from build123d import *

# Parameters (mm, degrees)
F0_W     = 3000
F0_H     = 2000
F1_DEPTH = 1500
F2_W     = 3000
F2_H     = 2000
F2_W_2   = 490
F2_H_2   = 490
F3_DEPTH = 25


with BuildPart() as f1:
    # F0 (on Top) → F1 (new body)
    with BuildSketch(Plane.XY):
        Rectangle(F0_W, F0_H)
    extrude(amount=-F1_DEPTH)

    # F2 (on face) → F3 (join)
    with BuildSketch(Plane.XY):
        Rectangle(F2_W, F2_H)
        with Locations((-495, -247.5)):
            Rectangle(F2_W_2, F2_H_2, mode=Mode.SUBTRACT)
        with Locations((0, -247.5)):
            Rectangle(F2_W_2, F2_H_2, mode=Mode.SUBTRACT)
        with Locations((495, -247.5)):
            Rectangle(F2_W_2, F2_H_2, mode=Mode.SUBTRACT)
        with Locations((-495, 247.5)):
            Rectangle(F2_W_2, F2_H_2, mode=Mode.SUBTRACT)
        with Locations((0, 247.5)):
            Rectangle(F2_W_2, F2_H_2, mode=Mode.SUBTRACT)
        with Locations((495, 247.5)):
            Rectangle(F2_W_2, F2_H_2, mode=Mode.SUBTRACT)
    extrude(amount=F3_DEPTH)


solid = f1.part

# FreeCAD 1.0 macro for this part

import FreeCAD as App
import Part
import Sketcher

V = App.Vector
Q = App.Units.Quantity

doc = App.newDocument("Part")
body = doc.addObject("PartDesign::Body", "Body")

# Sketch on XY plane
sketch1 = body.newObject("Sketcher::SketchObject", "Sketch")
sketch1.AttachmentSupport = (doc.getObject("XY_Plane"), [""])
sketch1.MapMode = "FlatFace"
sketch1.addGeometry([
    Part.LineSegment(V(-1500, 1000, 0), V(-1500, -1000, 0)),
    Part.LineSegment(V(-1500, -1000, 0), V(1500, -1000, 0)),
    Part.LineSegment(V(1500, -1000, 0), V(1500, 1000, 0)),
    Part.LineSegment(V(1500, 1000, 0), V(-1500, 1000, 0)),
], False)
sketch1.addConstraint([
    Sketcher.Constraint("Coincident", 0, 2, 1, 1),
    Sketcher.Constraint("Coincident", 1, 2, 2, 1),
    Sketcher.Constraint("Coincident", 2, 2, 3, 1),
    Sketcher.Constraint("Coincident", 3, 2, 0, 1),
    Sketcher.Constraint("Vertical", 0),
    Sketcher.Constraint("Horizontal", 1),
    Sketcher.Constraint("Vertical", 2),
    Sketcher.Constraint("Horizontal", 3),
    Sketcher.Constraint("Symmetric", 0, 2, 2, 2, -1, 1),
    Sketcher.Constraint("DistanceX", 1, 1, 1, 2, Q("3000 mm")),
    Sketcher.Constraint("DistanceY", 0, 2, 0, 1, Q("2000 mm")),
])
pad1 = body.newObject("PartDesign::Pad", "Pad")
pad1.Profile = sketch1
pad1.Length = 1500
pad1.Reversed = True

# Sketch on XY plane
sketch2 = body.newObject("Sketcher::SketchObject", "Sketch001")
sketch2.AttachmentSupport = (doc.getObject("XY_Plane"), [""])
sketch2.MapMode = "FlatFace"
sketch2.addGeometry([
    Part.LineSegment(V(-1500, 1000, 0), V(-1500, -1000, 0)),  # 0
    Part.LineSegment(V(-1500, -1000, 0), V(1500, -1000, 0)),  # 1
    Part.LineSegment(V(1500, -1000, 0), V(1500, 1000, 0)),  # 2
    Part.LineSegment(V(1500, 1000, 0), V(-1500, 1000, 0)),  # 3
    Part.LineSegment(V(-250, -492, 0), V(-740, -492, 0)),  # 4
    Part.LineSegment(V(-740, -492, 0), V(-740, -2, 0)),  # 5
    Part.LineSegment(V(-740, -2, 0), V(-250, -2, 0)),  # 6
    Part.LineSegment(V(-250, -2, 0), V(-250, -492, 0)),  # 7
    Part.LineSegment(V(245, -492, 0), V(-245, -492, 0)),  # 8
    Part.LineSegment(V(-245, -492, 0), V(-245, -2, 0)),  # 9
    Part.LineSegment(V(-245, -2, 0), V(245, -2, 0)),  # 10
    Part.LineSegment(V(245, -2, 0), V(245, -492, 0)),  # 11
    Part.LineSegment(V(740, -492, 0), V(250, -492, 0)),  # 12
    Part.LineSegment(V(250, -492, 0), V(250, -2, 0)),  # 13
    Part.LineSegment(V(250, -2, 0), V(740, -2, 0)),  # 14
    Part.LineSegment(V(740, -2, 0), V(740, -492, 0)),  # 15
    Part.LineSegment(V(-250, 2, 0), V(-740, 2, 0)),  # 16
    Part.LineSegment(V(-740, 2, 0), V(-740, 492, 0)),  # 17
    Part.LineSegment(V(-740, 492, 0), V(-250, 492, 0)),  # 18
    Part.LineSegment(V(-250, 492, 0), V(-250, 2, 0)),  # 19
    Part.LineSegment(V(245, 2, 0), V(-245, 2, 0)),  # 20
    Part.LineSegment(V(-245, 2, 0), V(-245, 492, 0)),  # 21
    Part.LineSegment(V(-245, 492, 0), V(245, 492, 0)),  # 22
    Part.LineSegment(V(245, 492, 0), V(245, 2, 0)),  # 23
    Part.LineSegment(V(740, 2, 0), V(250, 2, 0)),  # 24
    Part.LineSegment(V(250, 2, 0), V(250, 492, 0)),  # 25
    Part.LineSegment(V(250, 492, 0), V(740, 492, 0)),  # 26
    Part.LineSegment(V(740, 492, 0), V(740, 2, 0)),  # 27
], False)
sketch2.addConstraint([
    Sketcher.Constraint("Coincident", 0, 2, 1, 1),
    Sketcher.Constraint("Coincident", 1, 2, 2, 1),
    Sketcher.Constraint("Coincident", 2, 2, 3, 1),
    Sketcher.Constraint("Coincident", 3, 2, 0, 1),
    Sketcher.Constraint("Coincident", 4, 2, 5, 1),
    Sketcher.Constraint("Coincident", 5, 2, 6, 1),
    Sketcher.Constraint("Coincident", 6, 2, 7, 1),
    Sketcher.Constraint("Coincident", 7, 2, 4, 1),
    Sketcher.Constraint("Coincident", 8, 2, 9, 1),
    Sketcher.Constraint("Coincident", 9, 2, 10, 1),
    Sketcher.Constraint("Coincident", 10, 2, 11, 1),
    Sketcher.Constraint("Coincident", 11, 2, 8, 1),
    Sketcher.Constraint("Coincident", 12, 2, 13, 1),
    Sketcher.Constraint("Coincident", 13, 2, 14, 1),
    Sketcher.Constraint("Coincident", 14, 2, 15, 1),
    Sketcher.Constraint("Coincident", 15, 2, 12, 1),
    Sketcher.Constraint("Coincident", 16, 2, 17, 1),
    Sketcher.Constraint("Coincident", 17, 2, 18, 1),
    Sketcher.Constraint("Coincident", 18, 2, 19, 1),
    Sketcher.Constraint("Coincident", 19, 2, 16, 1),
    Sketcher.Constraint("Coincident", 20, 2, 21, 1),
    Sketcher.Constraint("Coincident", 21, 2, 22, 1),
    Sketcher.Constraint("Coincident", 22, 2, 23, 1),
    Sketcher.Constraint("Coincident", 23, 2, 20, 1),
    Sketcher.Constraint("Coincident", 24, 2, 25, 1),
    Sketcher.Constraint("Coincident", 25, 2, 26, 1),
    Sketcher.Constraint("Coincident", 26, 2, 27, 1),
    Sketcher.Constraint("Coincident", 27, 2, 24, 1),
    Sketcher.Constraint("Vertical", 0),
    Sketcher.Constraint("Horizontal", 1),
    Sketcher.Constraint("Vertical", 2),
    Sketcher.Constraint("Horizontal", 3),
    Sketcher.Constraint("Horizontal", 4),
    Sketcher.Constraint("Vertical", 5),
    Sketcher.Constraint("Horizontal", 6),
    Sketcher.Constraint("Vertical", 7),
    Sketcher.Constraint("Horizontal", 8),
    Sketcher.Constraint("Vertical", 9),
    Sketcher.Constraint("Horizontal", 10),
    Sketcher.Constraint("Vertical", 11),
    Sketcher.Constraint("Horizontal", 12),
    Sketcher.Constraint("Vertical", 13),
    Sketcher.Constraint("Horizontal", 14),
    Sketcher.Constraint("Vertical", 15),
    Sketcher.Constraint("Horizontal", 16),
    Sketcher.Constraint("Vertical", 17),
    Sketcher.Constraint("Horizontal", 18),
    Sketcher.Constraint("Vertical", 19),
    Sketcher.Constraint("Horizontal", 20),
    Sketcher.Constraint("Vertical", 21),
    Sketcher.Constraint("Horizontal", 22),
    Sketcher.Constraint("Vertical", 23),
    Sketcher.Constraint("Horizontal", 24),
    Sketcher.Constraint("Vertical", 25),
    Sketcher.Constraint("Horizontal", 26),
    Sketcher.Constraint("Vertical", 27),
    Sketcher.Constraint("Symmetric", 0, 2, 2, 2, -1, 1),
    Sketcher.Constraint("Symmetric", 14, 2, 16, 2, -1, 1),
    Sketcher.Constraint("Symmetric", 12, 2, 18, 2, -1, 1),
    Sketcher.Constraint("Symmetric", 10, 2, 20, 2, -1, 1),
    Sketcher.Constraint("Symmetric", 8, 2, 22, 2, -1, 1),
    Sketcher.Constraint("Symmetric", 6, 2, 24, 2, -1, 1),
    Sketcher.Constraint("Symmetric", 4, 2, 26, 2, -1, 1),
    Sketcher.Constraint("Symmetric", 7, 2, 12, 2, -2),
    Sketcher.Constraint("Symmetric", 5, 2, 14, 2, -2),
    Sketcher.Constraint("Horizontal", 7, 2, 8, 2),
    Sketcher.Constraint("Horizontal", 6, 2, 9, 2),
    Sketcher.Constraint("Vertical", 9, 2, 20, 2),
    Sketcher.Constraint("Equal", 6, 8),
    Sketcher.Constraint("Equal", 26, 5),
    Sketcher.Constraint("DistanceX", 1, 1, 1, 2, Q("3000 mm")),
    Sketcher.Constraint("DistanceX", 4, 2, 4, 1, Q("490 mm")),
    Sketcher.Constraint("DistanceY", 0, 2, 0, 1, Q("2000 mm")),
    Sketcher.Constraint("DistanceX", 4, 2, -1, 1, Q("740 mm")),
    Sketcher.Constraint("DistanceY", 5, 2, 16, 2, Q("5 mm")),
])
pad2 = body.newObject("PartDesign::Pad", "Pad001")
pad2.Profile = sketch2
pad2.Length = 25

doc.recompute()
